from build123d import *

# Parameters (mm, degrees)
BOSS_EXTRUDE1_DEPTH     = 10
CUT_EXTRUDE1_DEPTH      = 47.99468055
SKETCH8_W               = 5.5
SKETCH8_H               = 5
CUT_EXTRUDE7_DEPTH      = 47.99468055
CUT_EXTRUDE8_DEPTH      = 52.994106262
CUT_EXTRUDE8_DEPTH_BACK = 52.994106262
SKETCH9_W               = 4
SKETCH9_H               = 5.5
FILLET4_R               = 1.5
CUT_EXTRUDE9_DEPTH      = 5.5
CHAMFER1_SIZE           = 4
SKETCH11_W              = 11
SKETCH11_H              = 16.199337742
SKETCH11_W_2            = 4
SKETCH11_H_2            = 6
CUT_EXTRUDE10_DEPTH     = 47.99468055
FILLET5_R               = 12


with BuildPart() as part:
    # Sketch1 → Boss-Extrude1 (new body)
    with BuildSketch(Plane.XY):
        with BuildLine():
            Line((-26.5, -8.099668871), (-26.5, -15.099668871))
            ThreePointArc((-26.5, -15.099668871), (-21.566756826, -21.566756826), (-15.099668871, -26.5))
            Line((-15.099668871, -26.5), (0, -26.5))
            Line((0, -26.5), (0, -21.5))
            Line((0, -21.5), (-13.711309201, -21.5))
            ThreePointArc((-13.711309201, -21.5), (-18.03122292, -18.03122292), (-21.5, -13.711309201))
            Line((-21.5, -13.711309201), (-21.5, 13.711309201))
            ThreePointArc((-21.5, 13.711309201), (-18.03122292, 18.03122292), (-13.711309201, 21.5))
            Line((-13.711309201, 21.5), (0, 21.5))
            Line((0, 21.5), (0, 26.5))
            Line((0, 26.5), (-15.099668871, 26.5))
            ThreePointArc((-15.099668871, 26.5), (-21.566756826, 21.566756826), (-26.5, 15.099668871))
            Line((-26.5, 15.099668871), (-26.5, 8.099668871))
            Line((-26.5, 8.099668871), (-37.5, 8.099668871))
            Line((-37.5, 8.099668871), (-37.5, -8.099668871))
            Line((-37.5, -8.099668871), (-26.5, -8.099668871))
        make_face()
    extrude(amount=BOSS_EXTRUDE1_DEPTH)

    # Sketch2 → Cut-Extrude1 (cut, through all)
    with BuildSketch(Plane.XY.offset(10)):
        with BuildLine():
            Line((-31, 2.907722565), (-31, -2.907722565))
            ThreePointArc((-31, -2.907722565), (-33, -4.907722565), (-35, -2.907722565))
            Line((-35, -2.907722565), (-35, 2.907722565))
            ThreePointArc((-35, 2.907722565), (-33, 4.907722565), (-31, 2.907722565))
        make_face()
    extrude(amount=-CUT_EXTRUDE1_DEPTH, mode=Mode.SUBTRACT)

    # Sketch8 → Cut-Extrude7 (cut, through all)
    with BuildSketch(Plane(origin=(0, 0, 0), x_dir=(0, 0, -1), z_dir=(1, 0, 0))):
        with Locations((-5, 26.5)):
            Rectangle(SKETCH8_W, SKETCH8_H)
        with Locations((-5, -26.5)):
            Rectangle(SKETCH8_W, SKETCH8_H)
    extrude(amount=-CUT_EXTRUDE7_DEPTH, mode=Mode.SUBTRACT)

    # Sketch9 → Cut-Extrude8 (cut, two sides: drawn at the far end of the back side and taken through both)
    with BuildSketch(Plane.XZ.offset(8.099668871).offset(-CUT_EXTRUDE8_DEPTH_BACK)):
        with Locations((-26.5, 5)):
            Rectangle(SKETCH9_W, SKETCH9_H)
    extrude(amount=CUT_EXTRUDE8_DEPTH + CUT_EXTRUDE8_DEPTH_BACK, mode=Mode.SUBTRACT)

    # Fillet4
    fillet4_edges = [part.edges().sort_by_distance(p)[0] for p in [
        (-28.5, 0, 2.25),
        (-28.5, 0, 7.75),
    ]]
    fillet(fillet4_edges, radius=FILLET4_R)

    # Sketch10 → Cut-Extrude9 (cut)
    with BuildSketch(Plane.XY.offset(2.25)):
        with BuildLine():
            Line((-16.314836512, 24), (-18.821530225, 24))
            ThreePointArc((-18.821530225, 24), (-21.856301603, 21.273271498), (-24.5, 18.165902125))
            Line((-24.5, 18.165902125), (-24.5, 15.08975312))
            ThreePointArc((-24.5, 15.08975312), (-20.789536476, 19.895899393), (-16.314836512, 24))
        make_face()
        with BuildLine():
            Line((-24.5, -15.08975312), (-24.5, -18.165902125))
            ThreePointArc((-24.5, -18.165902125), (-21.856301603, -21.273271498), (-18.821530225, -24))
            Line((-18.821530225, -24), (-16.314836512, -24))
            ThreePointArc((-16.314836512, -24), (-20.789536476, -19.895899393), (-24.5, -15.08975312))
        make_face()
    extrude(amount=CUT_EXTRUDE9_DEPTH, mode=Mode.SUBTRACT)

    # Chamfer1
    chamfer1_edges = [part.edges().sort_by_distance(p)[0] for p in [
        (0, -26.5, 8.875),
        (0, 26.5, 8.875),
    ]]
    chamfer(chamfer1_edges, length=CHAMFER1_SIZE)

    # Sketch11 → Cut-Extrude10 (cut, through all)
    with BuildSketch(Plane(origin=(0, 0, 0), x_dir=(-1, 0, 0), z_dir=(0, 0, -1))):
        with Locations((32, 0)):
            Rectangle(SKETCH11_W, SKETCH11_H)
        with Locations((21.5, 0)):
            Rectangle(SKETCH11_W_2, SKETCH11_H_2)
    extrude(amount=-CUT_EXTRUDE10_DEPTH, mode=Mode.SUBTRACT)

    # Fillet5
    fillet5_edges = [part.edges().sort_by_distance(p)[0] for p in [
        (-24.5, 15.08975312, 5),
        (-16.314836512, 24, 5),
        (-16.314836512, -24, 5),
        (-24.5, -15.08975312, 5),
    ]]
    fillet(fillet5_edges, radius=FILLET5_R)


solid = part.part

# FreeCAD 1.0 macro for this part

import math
import FreeCAD as App
import Part
import Sketcher
Q = App.Units.Quantity


def edges_at(feature, points):
    """Names of the edges that pass closest to the given points."""
    edges = feature.Shape.Edges
    near = lambda p: min(range(len(edges)), key=lambda i: edges[i].distToShape(Part.Vertex(*p))[0])
    return sorted({f"Edge{near(p) + 1}" for p in points})

doc = App.newDocument("Part")
params = doc.addObject("Spreadsheet::Sheet", "Params")
for row, (alias, value) in enumerate([
    ("sketch1_radius", "30.5 mm"),
    ("sketch1_radius2", "25.5 mm"),
    ("sketch1_width", "11 mm"),
    ("sketch1_height", "7 mm"),
    ("sketch1_height2", "5 mm"),
    ("pad1_length", "10 mm"),
    ("sketch2_radius", "2 mm"),
    ("sketch3_width", "5 mm"),
    ("sketch3_height", "5.5 mm"),
    ("sketch4_width", "4 mm"),
    ("sketch4_height", "5.5 mm"),
    ("fillet_radius", "1.5 mm"),
    ("sketch5_radius", "30.5 mm"),
    ("pocket4_length", "5.5 mm"),
    ("chamfer_size", "4 mm"),
    ("sketch6_width", "11 mm"),
    ("sketch6_width2", "4 mm"),
    ("sketch6_height", "6 mm"),
    ("fillet2_radius", "12 mm"),
], start=1):
    params.set(f"A{row}", alias)
    params.set(f"B{row}", "=" + value)
    params.setAlias(f"B{row}", alias)

body = doc.addObject("PartDesign::Body", "Body")

# Sketch on XY plane
sketch1 = body.newObject("Sketcher::SketchObject", "Sketch")
sketch1.AttachmentSupport = (doc.getObject("XY_Plane"), [""])
sketch1.MapMode = "FlatFace"
sketch1.addGeometry(Part.LineSegment(App.Vector(-26, -8, 0), App.Vector(-26, -15, 0)), False)
sketch1.addGeometry(Part.ArcOfCircle(Part.Circle(App.Vector(0, 0, 0), App.Vector(0, 0, 1), 31), math.radians(-150), math.radians(-120)), False)
sketch1.addGeometry(Part.LineSegment(App.Vector(-15, -26, 0), App.Vector(0, -26, 0)), False)
sketch1.addGeometry(Part.LineSegment(App.Vector(0, -26, 0), App.Vector(0, -22, 0)), False)
sketch1.addGeometry(Part.LineSegment(App.Vector(0, -22, 0), App.Vector(-14, -22, 0)), False)
sketch1.addGeometry(Part.ArcOfCircle(Part.Circle(App.Vector(0, 0, 0), App.Vector(0, 0, 1), 26), math.radians(-147), math.radians(-123)), False)
sketch1.addGeometry(Part.LineSegment(App.Vector(-22, -14, 0), App.Vector(-22, 14, 0)), False)
sketch1.addGeometry(Part.ArcOfCircle(Part.Circle(App.Vector(0, 0, 0), App.Vector(0, 0, 1), 26), math.radians(123), math.radians(147)), False)
sketch1.addGeometry(Part.LineSegment(App.Vector(-14, 22, 0), App.Vector(0, 22, 0)), False)
sketch1.addGeometry(Part.LineSegment(App.Vector(0, 22, 0), App.Vector(0, 26, 0)), False)
sketch1.addGeometry(Part.LineSegment(App.Vector(0, 26, 0), App.Vector(-15, 26, 0)), False)
sketch1.addGeometry(Part.ArcOfCircle(Part.Circle(App.Vector(0, 0, 0), App.Vector(0, 0, 1), 31), math.radians(120), math.radians(150)), False)
sketch1.addGeometry(Part.LineSegment(App.Vector(-26, 15, 0), App.Vector(-26, 8, 0)), False)
sketch1.addGeometry(Part.LineSegment(App.Vector(-26, 8, 0), App.Vector(-38, 8, 0)), False)
sketch1.addGeometry(Part.LineSegment(App.Vector(-38, 8, 0), App.Vector(-38, -8, 0)), False)
sketch1.addGeometry(Part.LineSegment(App.Vector(-38, -8, 0), App.Vector(-26, -8, 0)), False)
sketch1.addConstraint(Sketcher.Constraint("Coincident", 0, 2, 1, 1))
sketch1.addConstraint(Sketcher.Constraint("Coincident", 1, 2, 2, 1))
sketch1.addConstraint(Sketcher.Constraint("Coincident", 2, 2, 3, 1))
sketch1.addConstraint(Sketcher.Constraint("Coincident", 3, 2, 4, 1))
sketch1.addConstraint(Sketcher.Constraint("Coincident", 4, 2, 5, 2))
sketch1.addConstraint(Sketcher.Constraint("Coincident", 5, 1, 6, 1))
sketch1.addConstraint(Sketcher.Constraint("Coincident", 6, 2, 7, 2))
sketch1.addConstraint(Sketcher.Constraint("Coincident", 7, 1, 8, 1))
sketch1.addConstraint(Sketcher.Constraint("Coincident", 8, 2, 9, 1))
sketch1.addConstraint(Sketcher.Constraint("Coincident", 9, 2, 10, 1))
sketch1.addConstraint(Sketcher.Constraint("Coincident", 10, 2, 11, 1))
sketch1.addConstraint(Sketcher.Constraint("Coincident", 11, 2, 12, 1))
sketch1.addConstraint(Sketcher.Constraint("Coincident", 12, 2, 13, 1))
sketch1.addConstraint(Sketcher.Constraint("Coincident", 13, 2, 14, 1))
sketch1.addConstraint(Sketcher.Constraint("Coincident", 14, 2, 15, 1))
sketch1.addConstraint(Sketcher.Constraint("Coincident", 15, 2, 0, 1))
sketch1.addConstraint(Sketcher.Constraint("Vertical", 0))
sketch1.addConstraint(Sketcher.Constraint("Horizontal", 2))
sketch1.addConstraint(Sketcher.Constraint("Vertical", 3))
sketch1.addConstraint(Sketcher.Constraint("Horizontal", 4))
sketch1.addConstraint(Sketcher.Constraint("Vertical", 6))
sketch1.addConstraint(Sketcher.Constraint("Horizontal", 8))
sketch1.addConstraint(Sketcher.Constraint("Vertical", 9))
sketch1.addConstraint(Sketcher.Constraint("Horizontal", 10))
sketch1.addConstraint(Sketcher.Constraint("Vertical", 12))
sketch1.addConstraint(Sketcher.Constraint("Horizontal", 13))
sketch1.addConstraint(Sketcher.Constraint("Vertical", 14))
sketch1.addConstraint(Sketcher.Constraint("Horizontal", 15))
sketch1.addConstraint(Sketcher.Constraint("Coincident", 1, 3, -1, 1))
sketch1.addConstraint(Sketcher.Constraint("Coincident", 5, 3, -1, 1))
sketch1.addConstraint(Sketcher.Constraint("Coincident", 7, 3, -1, 1))
sketch1.addConstraint(Sketcher.Constraint("Coincident", 11, 3, -1, 1))
sketch1.addConstraint(Sketcher.Constraint("Equal", 5, 7))
sketch1.addConstraint(Sketcher.Constraint("Equal", 1, 11))
sketch1.addConstraint(Sketcher.Constraint("Symmetric", 3, 2, 8, 2, -1, 1))
sketch1.addConstraint(Sketcher.Constraint("Symmetric", 2, 2, 9, 2, -1))
sketch1.addConstraint(Sketcher.Constraint("Symmetric", 12, 2, 15, 2, -1))
sketch1.addConstraint(Sketcher.Constraint("Radius", 1, Q("30.5 mm")))
sketch1.addConstraint(Sketcher.Constraint("Radius", 5, Q("25.5 mm")))
sketch1.addConstraint(Sketcher.Constraint("DistanceX", 13, 2, 13, 1, Q("11 mm")))
sketch1.addConstraint(Sketcher.Constraint("DistanceY", 0, 2, 0, 1, Q("7 mm")))
sketch1.addConstraint(Sketcher.Constraint("DistanceY", 3, 1, 3, 2, Q("5 mm")))
sketch1.addConstraint(Sketcher.Constraint("DistanceX", 0, 2, 5, 1, Q("5 mm")))
sketch1.addConstraint(Sketcher.Constraint("DistanceX", 0, 2, -1, 1, Q("26.5 mm")))
sketch1.addConstraint(Sketcher.Constraint("DistanceY", 1, 2, -1, 1, Q("26.5 mm")))
sketch1.setExpression("Constraints[37]", "Params.sketch1_radius")
sketch1.setExpression("Constraints[38]", "Params.sketch1_radius2")
sketch1.setExpression("Constraints[39]", "Params.sketch1_width")
sketch1.setExpression("Constraints[40]", "Params.sketch1_height")
sketch1.setExpression("Constraints[41]", "Params.sketch1_height2")
pad1 = body.newObject("PartDesign::Pad", "Pad")
pad1.Profile = sketch1
pad1.setExpression("Length", "Params.pad1_length")

# Sketch on XY plane
sketch2 = body.newObject("Sketcher::SketchObject", "Sketch001")
sketch2.AttachmentSupport = (doc.getObject("XY_Plane"), [""])
sketch2.MapMode = "FlatFace"
sketch2.AttachmentOffset = App.Placement(App.Vector(0, 0, 10), App.Rotation())
sketch2.addGeometry(Part.LineSegment(App.Vector(-31, -2.9, 0), App.Vector(-31, 2.9, 0)), False)
sketch2.addGeometry(Part.ArcOfCircle(Part.Circle(App.Vector(-33, 2.9, 0), App.Vector(0, 0, 1), 2), math.radians(0), math.radians(180)), False)
sketch2.addGeometry(Part.LineSegment(App.Vector(-35, 2.9, 0), App.Vector(-35, -2.9, 0)), False)
sketch2.addGeometry(Part.ArcOfCircle(Part.Circle(App.Vector(-33, -2.9, 0), App.Vector(0, 0, 1), 2), math.radians(180), math.radians(360)), False)
sketch2.addConstraint(Sketcher.Constraint("Tangent", 0, 2, 1, 1))
sketch2.addConstraint(Sketcher.Constraint("Tangent", 1, 2, 2, 1))
sketch2.addConstraint(Sketcher.Constraint("Tangent", 2, 2, 3, 1))
sketch2.addConstraint(Sketcher.Constraint("Tangent", 3, 2, 0, 1))
sketch2.addConstraint(Sketcher.Constraint("Vertical", 0))
sketch2.addConstraint(Sketcher.Constraint("Vertical", 2))
sketch2.addConstraint(Sketcher.Constraint("Radius", 1, Q("2 mm")))
sketch2.addConstraint(Sketcher.Constraint("DistanceX", 1, 3, -1, 1, Q("33 mm")))
sketch2.addConstraint(Sketcher.Constraint("DistanceY", 0, 1, 0, 2, Q("5.815445 mm")))
sketch2.addConstraint(Sketcher.Constraint("DistanceY", -1, 1, 1, 3, Q("2.907723 mm")))
sketch2.setExpression("Constraints[6]", "Params.sketch2_radius")
pocket1 = body.newObject("PartDesign::Pocket", "Pocket")
pocket1.Profile = sketch2
pocket1.Type = "ThroughAll"

# Sketch on YZ plane
sketch3 = body.newObject("Sketcher::SketchObject", "Sketch002")
sketch3.AttachmentSupport = (doc.getObject("YZ_Plane"), [""])
sketch3.MapMode = "FlatFace"
sketch3.addGeometry(Part.LineSegment(App.Vector(29, 8, 0), App.Vector(24, 8, 0)), False)
sketch3.addGeometry(Part.LineSegment(App.Vector(24, 8, 0), App.Vector(24, 2, 0)), False)
sketch3.addGeometry(Part.LineSegment(App.Vector(24, 2, 0), App.Vector(29, 2, 0)), False)
sketch3.addGeometry(Part.LineSegment(App.Vector(29, 2, 0), App.Vector(29, 8, 0)), False)
sketch3.addGeometry(Part.LineSegment(App.Vector(-24, 8, 0), App.Vector(-29, 8, 0)), False)
sketch3.addGeometry(Part.LineSegment(App.Vector(-29, 8, 0), App.Vector(-29, 2, 0)), False)
sketch3.addGeometry(Part.LineSegment(App.Vector(-29, 2, 0), App.Vector(-24, 2, 0)), False)
sketch3.addGeometry(Part.LineSegment(App.Vector(-24, 2, 0), App.Vector(-24, 8, 0)), False)
sketch3.addConstraint(Sketcher.Constraint("Coincident", 0, 2, 1, 1))
sketch3.addConstraint(Sketcher.Constraint("Coincident", 1, 2, 2, 1))
sketch3.addConstraint(Sketcher.Constraint("Coincident", 2, 2, 3, 1))
sketch3.addConstraint(Sketcher.Constraint("Coincident", 3, 2, 0, 1))
sketch3.addConstraint(Sketcher.Constraint("Coincident", 4, 2, 5, 1))
sketch3.addConstraint(Sketcher.Constraint("Coincident", 5, 2, 6, 1))
sketch3.addConstraint(Sketcher.Constraint("Coincident", 6, 2, 7, 1))
sketch3.addConstraint(Sketcher.Constraint("Coincident", 7, 2, 4, 1))
sketch3.addConstraint(Sketcher.Constraint("Horizontal", 0))
sketch3.addConstraint(Sketcher.Constraint("Vertical", 1))
sketch3.addConstraint(Sketcher.Constraint("Horizontal", 2))
sketch3.addConstraint(Sketcher.Constraint("Vertical", 3))
sketch3.addConstraint(Sketcher.Constraint("Horizontal", 4))
sketch3.addConstraint(Sketcher.Constraint("Vertical", 5))
sketch3.addConstraint(Sketcher.Constraint("Horizontal", 6))
sketch3.addConstraint(Sketcher.Constraint("Vertical", 7))
sketch3.addConstraint(Sketcher.Constraint("Symmetric", 3, 2, 4, 2, -2))
sketch3.addConstraint(Sketcher.Constraint("Symmetric", 1, 2, 6, 2, -2))
sketch3.addConstraint(Sketcher.Constraint("DistanceX", 0, 2, 0, 1, Q("5 mm")))
sketch3.addConstraint(Sketcher.Constraint("DistanceY", 1, 2, 1, 1, Q("5.5 mm")))
sketch3.addConstraint(Sketcher.Constraint("DistanceX", -1, 1, 0, 2, Q("24 mm")))
sketch3.addConstraint(Sketcher.Constraint("DistanceY", -1, 1, 0, 2, Q("7.75 mm")))
sketch3.setExpression("Constraints[18]", "Params.sketch3_width")
sketch3.setExpression("Constraints[19]", "Params.sketch3_height")
pocket2 = body.newObject("PartDesign::Pocket", "Pocket001")
pocket2.Profile = sketch3
pocket2.Type = "ThroughAll"

# Sketch on XZ plane
sketch4 = body.newObject("Sketcher::SketchObject", "Sketch003")
sketch4.AttachmentSupport = (doc.getObject("XZ_Plane"), [""])
sketch4.MapMode = "FlatFace"
sketch4.AttachmentOffset = App.Placement(App.Vector(0, 0, 8.099669), App.Rotation())
sketch4.addGeometry(Part.LineSegment(App.Vector(-28.5, 7.8, 0), App.Vector(-28.5, 2.2, 0)), False)
sketch4.addGeometry(Part.LineSegment(App.Vector(-28.5, 2.2, 0), App.Vector(-24.5, 2.2, 0)), False)
sketch4.addGeometry(Part.LineSegment(App.Vector(-24.5, 2.2, 0), App.Vector(-24.5, 7.8, 0)), False)
sketch4.addGeometry(Part.LineSegment(App.Vector(-24.5, 7.8, 0), App.Vector(-28.5, 7.8, 0)), False)
sketch4.addConstraint(Sketcher.Constraint("Coincident", 0, 2, 1, 1))
sketch4.addConstraint(Sketcher.Constraint("Coincident", 1, 2, 2, 1))
sketch4.addConstraint(Sketcher.Constraint("Coincident", 2, 2, 3, 1))
sketch4.addConstraint(Sketcher.Constraint("Coincident", 3, 2, 0, 1))
sketch4.addConstraint(Sketcher.Constraint("Vertical", 0))
sketch4.addConstraint(Sketcher.Constraint("Horizontal", 1))
sketch4.addConstraint(Sketcher.Constraint("Vertical", 2))
sketch4.addConstraint(Sketcher.Constraint("Horizontal", 3))
sketch4.addConstraint(Sketcher.Constraint("DistanceX", 1, 1, 1, 2, Q("4 mm")))
sketch4.addConstraint(Sketcher.Constraint("DistanceY", 0, 2, 0, 1, Q("5.5 mm")))
sketch4.addConstraint(Sketcher.Constraint("DistanceX", 0, 2, -1, 1, Q("28.5 mm")))
sketch4.addConstraint(Sketcher.Constraint("DistanceY", -1, 1, 0, 2, Q("2.25 mm")))
sketch4.setExpression("Constraints[8]", "Params.sketch4_width")
sketch4.setExpression("Constraints[9]", "Params.sketch4_height")
pocket3 = body.newObject("PartDesign::Pocket", "Pocket002")
pocket3.Profile = sketch4
pocket3.Type = "ThroughAll"
pocket3.Midplane = True
doc.recompute()

fillet = body.newObject("PartDesign::Fillet", "Fillet")
fillet.Base = (pocket3, edges_at(pocket3, [(-28.5, 0, 2.25), (-28.5, 0, 7.75)]))
fillet.setExpression("Radius", "Params.fillet_radius")

# Sketch on XY plane
sketch5 = body.newObject("Sketcher::SketchObject", "Sketch004")
sketch5.AttachmentSupport = (doc.getObject("XY_Plane"), [""])
sketch5.MapMode = "FlatFace"
sketch5.AttachmentOffset = App.Placement(App.Vector(0, 0, 2.25), App.Rotation())
sketch5.addGeometry(Part.LineSegment(App.Vector(-16.3, 24, 0), App.Vector(-18.8, 24, 0)), False)
sketch5.addGeometry(Part.ArcOfCircle(Part.Circle(App.Vector(0, 0, 0), App.Vector(0, 0, 1), 30.5), math.radians(128.1), math.radians(143.44)), False)
sketch5.addGeometry(Part.LineSegment(App.Vector(-24.5, 18.2, 0), App.Vector(-24.5, 15.1, 0)), False)
sketch5.addGeometry(Part.ArcOfCircle(Part.Circle(App.Vector(5.4, -4.1, 0), App.Vector(0, 0, 1), 35.5), math.radians(127.62), math.radians(147.23)), False)
sketch5.addGeometry(Part.LineSegment(App.Vector(-24.5, -15.1, 0), App.Vector(-24.5, -18.2, 0)), False)
sketch5.addGeometry(Part.ArcOfCircle(Part.Circle(App.Vector(0, 0, 0), App.Vector(0, 0, 1), 30.5), math.radians(-143.44), math.radians(-128.1)), False)
sketch5.addGeometry(Part.LineSegment(App.Vector(-18.8, -24, 0), App.Vector(-16.3, -24, 0)), False)
sketch5.addGeometry(Part.ArcOfCircle(Part.Circle(App.Vector(5.4, 4.1, 0), App.Vector(0, 0, 1), 35.5), math.radians(-147.23), math.radians(-127.62)), False)
sketch5.addConstraint(Sketcher.Constraint("Coincident", 0, 2, 1, 1))
sketch5.addConstraint(Sketcher.Constraint("Coincident", 1, 2, 2, 1))
sketch5.addConstraint(Sketcher.Constraint("Coincident", 2, 2, 3, 2))
sketch5.addConstraint(Sketcher.Constraint("Coincident", 3, 1, 0, 1))
sketch5.addConstraint(Sketcher.Constraint("Coincident", 4, 2, 5, 1))
sketch5.addConstraint(Sketcher.Constraint("Coincident", 5, 2, 6, 1))
sketch5.addConstraint(Sketcher.Constraint("Coincident", 6, 2, 7, 2))
sketch5.addConstraint(Sketcher.Constraint("Coincident", 7, 1, 4, 1))
sketch5.addConstraint(Sketcher.Constraint("Horizontal", 0))
sketch5.addConstraint(Sketcher.Constraint("Vertical", 2))
sketch5.addConstraint(Sketcher.Constraint("Vertical", 4))
sketch5.addConstraint(Sketcher.Constraint("Horizontal", 6))
sketch5.addConstraint(Sketcher.Constraint("Coincident", 1, 3, -1, 1))
sketch5.addConstraint(Sketcher.Constraint("Coincident", 5, 3, -1, 1))
sketch5.addConstraint(Sketcher.Constraint("Equal", 1, 5))
sketch5.addConstraint(Sketcher.Constraint("Equal", 3, 7))
sketch5.addConstraint(Sketcher.Constraint("Symmetric", 3, 3, 7, 3, -1))
sketch5.addConstraint(Sketcher.Constraint("Vertical", 2, 2, 4, 2))
sketch5.addConstraint(Sketcher.Constraint("Vertical", 0, 2, 5, 2))
sketch5.addConstraint(Sketcher.Constraint("Radius", 1, Q("30.5 mm")))
sketch5.addConstraint(Sketcher.Constraint("DistanceY", -1, 1, 0, 2, Q("24 mm")))
sketch5.addConstraint(Sketcher.Constraint("DistanceX", 1, 2, -1, 1, Q("24.5 mm")))
sketch5.addConstraint(Sketcher.Constraint("Radius", 3, Q("35.525488 mm")))
sketch5.addConstraint(Sketcher.Constraint("DistanceY", 2, 2, 2, 1, Q("3.076149 mm")))
sketch5.addConstraint(Sketcher.Constraint("DistanceX", 0, 2, 0, 1, Q("2.506694 mm")))
sketch5.setExpression("Constraints[19]", "Params.sketch5_radius")
pocket4 = body.newObject("PartDesign::Pocket", "Pocket003")
pocket4.Profile = sketch5
pocket4.setExpression("Length", "Params.pocket4_length")
pocket4.Reversed = True
doc.recompute()

chamfer = body.newObject("PartDesign::Chamfer", "Chamfer")
chamfer.Base = (pocket4, edges_at(pocket4, [(0, -26.5, 8.875), (0, 26.5, 8.875)]))
chamfer.setExpression("Size", "Params.chamfer_size")

# Sketch on XY plane
sketch6 = body.newObject("Sketcher::SketchObject", "Sketch005")
sketch6.AttachmentSupport = (doc.getObject("XY_Plane"), [""])
sketch6.MapMode = "FlatFace"
sketch6.addGeometry(Part.LineSegment(App.Vector(-26.5, 8.1, 0), App.Vector(-26.5, -8.1, 0)), False)
sketch6.addGeometry(Part.LineSegment(App.Vector(-26.5, -8.1, 0), App.Vector(-37.5, -8.1, 0)), False)
sketch6.addGeometry(Part.LineSegment(App.Vector(-37.5, -8.1, 0), App.Vector(-37.5, 8.1, 0)), False)
sketch6.addGeometry(Part.LineSegment(App.Vector(-37.5, 8.1, 0), App.Vector(-26.5, 8.1, 0)), False)
sketch6.addGeometry(Part.LineSegment(App.Vector(-19.5, 3, 0), App.Vector(-19.5, -3, 0)), False)
sketch6.addGeometry(Part.LineSegment(App.Vector(-19.5, -3, 0), App.Vector(-23.5, -3, 0)), False)
sketch6.addGeometry(Part.LineSegment(App.Vector(-23.5, -3, 0), App.Vector(-23.5, 3, 0)), False)
sketch6.addGeometry(Part.LineSegment(App.Vector(-23.5, 3, 0), App.Vector(-19.5, 3, 0)), False)
sketch6.addConstraint(Sketcher.Constraint("Coincident", 0, 2, 1, 1))
sketch6.addConstraint(Sketcher.Constraint("Coincident", 1, 2, 2, 1))
sketch6.addConstraint(Sketcher.Constraint("Coincident", 2, 2, 3, 1))
sketch6.addConstraint(Sketcher.Constraint("Coincident", 3, 2, 0, 1))
sketch6.addConstraint(Sketcher.Constraint("Coincident", 4, 2, 5, 1))
sketch6.addConstraint(Sketcher.Constraint("Coincident", 5, 2, 6, 1))
sketch6.addConstraint(Sketcher.Constraint("Coincident", 6, 2, 7, 1))
sketch6.addConstraint(Sketcher.Constraint("Coincident", 7, 2, 4, 1))
sketch6.addConstraint(Sketcher.Constraint("Vertical", 0))
sketch6.addConstraint(Sketcher.Constraint("Horizontal", 1))
sketch6.addConstraint(Sketcher.Constraint("Vertical", 2))
sketch6.addConstraint(Sketcher.Constraint("Horizontal", 3))
sketch6.addConstraint(Sketcher.Constraint("Vertical", 4))
sketch6.addConstraint(Sketcher.Constraint("Horizontal", 5))
sketch6.addConstraint(Sketcher.Constraint("Vertical", 6))
sketch6.addConstraint(Sketcher.Constraint("Horizontal", 7))
sketch6.addConstraint(Sketcher.Constraint("DistanceX", 1, 2, 1, 1, Q("11 mm")))
sketch6.addConstraint(Sketcher.Constraint("DistanceX", 5, 2, 5, 1, Q("4 mm")))
sketch6.addConstraint(Sketcher.Constraint("DistanceY", 4, 2, 4, 1, Q("6 mm")))
sketch6.addConstraint(Sketcher.Constraint("DistanceY", 4, 2, -1, 1, Q("3 mm")))
sketch6.addConstraint(Sketcher.Constraint("DistanceX", 0, 2, 4, 2, Q("7 mm")))
sketch6.addConstraint(Sketcher.Constraint("DistanceX", 0, 2, -1, 1, Q("26.5 mm")))
sketch6.addConstraint(Sketcher.Constraint("DistanceY", 0, 2, 0, 1, Q("16.199338 mm")))
sketch6.addConstraint(Sketcher.Constraint("DistanceY", 0, 2, -1, 1, Q("8.099669 mm")))
sketch6.setExpression("Constraints[16]", "Params.sketch6_width")
sketch6.setExpression("Constraints[17]", "Params.sketch6_width2")
sketch6.setExpression("Constraints[18]", "Params.sketch6_height")
pocket5 = body.newObject("PartDesign::Pocket", "Pocket004")
pocket5.Profile = sketch6
pocket5.Type = "ThroughAll"
pocket5.Reversed = True
doc.recompute()

fillet2 = body.newObject("PartDesign::Fillet", "Fillet001")
fillet2.Base = (pocket5, edges_at(pocket5, [
    (-24.5, 15.09, 5),
    (-16.315, 24, 5),
    (-16.315, -24, 5),
    (-24.5, -15.09, 5),
]))
fillet2.setExpression("Radius", "Params.fillet2_radius")

doc.recompute()
